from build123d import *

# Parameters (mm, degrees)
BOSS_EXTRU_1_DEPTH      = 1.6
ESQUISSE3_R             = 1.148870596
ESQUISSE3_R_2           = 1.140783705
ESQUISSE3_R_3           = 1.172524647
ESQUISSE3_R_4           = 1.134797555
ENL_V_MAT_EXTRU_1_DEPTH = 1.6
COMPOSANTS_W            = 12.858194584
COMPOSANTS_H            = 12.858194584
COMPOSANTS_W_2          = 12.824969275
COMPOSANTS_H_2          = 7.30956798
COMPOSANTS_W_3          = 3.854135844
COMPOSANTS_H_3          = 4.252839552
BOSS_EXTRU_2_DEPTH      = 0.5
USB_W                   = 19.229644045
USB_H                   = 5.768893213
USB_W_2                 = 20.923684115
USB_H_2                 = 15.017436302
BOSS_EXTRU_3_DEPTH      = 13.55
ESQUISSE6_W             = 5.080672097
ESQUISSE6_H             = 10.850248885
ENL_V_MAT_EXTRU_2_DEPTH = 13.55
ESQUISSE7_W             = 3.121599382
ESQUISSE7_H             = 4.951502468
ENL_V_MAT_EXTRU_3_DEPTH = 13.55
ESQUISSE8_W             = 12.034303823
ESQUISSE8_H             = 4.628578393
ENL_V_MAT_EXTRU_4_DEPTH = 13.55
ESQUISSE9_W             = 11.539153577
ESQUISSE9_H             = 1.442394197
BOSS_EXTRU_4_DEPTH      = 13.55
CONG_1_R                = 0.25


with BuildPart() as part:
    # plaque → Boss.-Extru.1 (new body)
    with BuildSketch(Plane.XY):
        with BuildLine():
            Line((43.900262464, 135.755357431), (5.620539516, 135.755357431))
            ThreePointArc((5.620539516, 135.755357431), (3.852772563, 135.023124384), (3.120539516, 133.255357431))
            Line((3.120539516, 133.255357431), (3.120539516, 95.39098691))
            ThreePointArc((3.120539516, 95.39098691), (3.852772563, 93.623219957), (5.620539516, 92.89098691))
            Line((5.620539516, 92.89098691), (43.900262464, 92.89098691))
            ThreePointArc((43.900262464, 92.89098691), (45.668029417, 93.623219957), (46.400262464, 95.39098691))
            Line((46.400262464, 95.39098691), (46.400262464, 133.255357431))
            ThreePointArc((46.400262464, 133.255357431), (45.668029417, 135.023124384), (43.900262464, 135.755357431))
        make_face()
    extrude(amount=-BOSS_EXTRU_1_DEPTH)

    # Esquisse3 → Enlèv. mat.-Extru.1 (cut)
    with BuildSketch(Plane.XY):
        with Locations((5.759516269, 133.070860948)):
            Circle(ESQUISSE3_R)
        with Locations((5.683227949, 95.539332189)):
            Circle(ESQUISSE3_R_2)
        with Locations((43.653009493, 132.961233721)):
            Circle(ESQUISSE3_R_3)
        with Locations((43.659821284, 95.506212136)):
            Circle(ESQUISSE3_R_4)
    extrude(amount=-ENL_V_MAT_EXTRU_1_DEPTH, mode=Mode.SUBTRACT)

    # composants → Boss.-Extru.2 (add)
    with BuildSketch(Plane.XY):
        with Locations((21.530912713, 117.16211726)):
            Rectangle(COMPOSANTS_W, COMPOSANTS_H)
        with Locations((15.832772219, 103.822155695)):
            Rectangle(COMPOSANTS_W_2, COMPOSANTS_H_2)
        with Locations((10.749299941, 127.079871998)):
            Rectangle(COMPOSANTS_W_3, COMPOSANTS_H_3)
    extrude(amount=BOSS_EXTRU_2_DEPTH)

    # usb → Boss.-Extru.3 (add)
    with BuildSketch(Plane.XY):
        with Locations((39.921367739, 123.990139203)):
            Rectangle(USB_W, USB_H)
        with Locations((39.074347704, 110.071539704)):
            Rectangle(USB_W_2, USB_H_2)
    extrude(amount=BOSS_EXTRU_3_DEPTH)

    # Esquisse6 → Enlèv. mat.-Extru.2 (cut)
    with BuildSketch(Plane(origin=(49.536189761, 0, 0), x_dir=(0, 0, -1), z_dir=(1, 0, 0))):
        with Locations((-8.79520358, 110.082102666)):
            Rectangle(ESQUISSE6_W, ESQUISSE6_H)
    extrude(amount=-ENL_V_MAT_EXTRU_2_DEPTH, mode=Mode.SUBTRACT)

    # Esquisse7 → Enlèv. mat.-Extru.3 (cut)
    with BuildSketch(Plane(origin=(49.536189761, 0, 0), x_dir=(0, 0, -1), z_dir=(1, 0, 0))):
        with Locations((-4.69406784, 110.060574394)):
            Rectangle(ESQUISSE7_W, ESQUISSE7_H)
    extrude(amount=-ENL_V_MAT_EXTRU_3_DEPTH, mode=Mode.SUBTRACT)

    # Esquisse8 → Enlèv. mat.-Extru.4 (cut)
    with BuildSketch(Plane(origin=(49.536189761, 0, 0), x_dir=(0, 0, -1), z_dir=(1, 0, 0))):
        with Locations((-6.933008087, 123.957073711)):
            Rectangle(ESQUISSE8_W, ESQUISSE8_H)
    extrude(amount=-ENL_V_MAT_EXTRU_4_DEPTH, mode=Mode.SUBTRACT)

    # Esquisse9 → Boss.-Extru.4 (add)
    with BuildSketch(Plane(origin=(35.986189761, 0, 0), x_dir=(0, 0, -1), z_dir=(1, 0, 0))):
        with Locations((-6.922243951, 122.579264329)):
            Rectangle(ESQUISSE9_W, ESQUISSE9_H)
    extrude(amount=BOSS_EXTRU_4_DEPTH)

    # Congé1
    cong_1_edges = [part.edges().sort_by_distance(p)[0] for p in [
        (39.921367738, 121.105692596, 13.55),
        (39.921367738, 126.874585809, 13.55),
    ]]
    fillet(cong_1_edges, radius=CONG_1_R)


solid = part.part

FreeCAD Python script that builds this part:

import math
import FreeCAD as App
import Part
import Sketcher
from FreeCAD import Vector
Q = App.Units.Quantity


def edges_at(feature, points):
    """Names of the edges that pass closest to the given points."""
    edges = feature.Shape.Edges
    near = lambda p: min(range(len(edges)), key=lambda i: edges[i].distToShape(Part.Vertex(*p))[0])
    return sorted({f"Edge{near(p) + 1}" for p in points})


def add_polygon(sketch, points):
    """Adds a closed chain of lines whose ends are joined by coincident constraints."""
    first, n = sketch.GeometryCount, len(points)
    for a, b in zip(points, points[1:] + points[:1]):
        sketch.addGeometry(Part.LineSegment(App.Vector(*a, 0), App.Vector(*b, 0)), False)
    for i in range(n):
        sketch.addConstraint(Sketcher.Constraint("Coincident", first + i, 2, first + (i + 1) % n, 1))

doc = App.newDocument("Part")
body = doc.addObject("PartDesign::Body", "Body")

# Sketch on XY plane
sketch1 = body.newObject("Sketcher::SketchObject", "Sketch")
sketch1.AttachmentSupport = (doc.getObject("XY_Plane"), [""])
sketch1.MapMode = "FlatFace"
sketch1.addGeometry([
    Part.LineSegment(Vector(43.9, 135.8, 0), Vector(5.6, 135.8, 0)),  # 0
    Part.ArcOfCircle(Part.Circle(Vector(5.6, 133.3, 0), Vector(0, 0, 1), 2.5), math.radians(90), math.radians(180)),  # 1
    Part.LineSegment(Vector(3.1, 133.3, 0), Vector(3.1, 95.4, 0)),  # 2
    Part.ArcOfCircle(Part.Circle(Vector(5.6, 95.4, 0), Vector(0, 0, 1), 2.5), math.radians(180), math.radians(270)),  # 3
    Part.LineSegment(Vector(5.6, 92.9, 0), Vector(43.9, 92.9, 0)),  # 4
    Part.ArcOfCircle(Part.Circle(Vector(43.9, 95.4, 0), Vector(0, 0, 1), 2.5), math.radians(-90), math.radians(0)),  # 5
    Part.LineSegment(Vector(46.4, 95.4, 0), Vector(46.4, 133.3, 0)),  # 6
    Part.ArcOfCircle(Part.Circle(Vector(43.9, 133.3, 0), Vector(0, 0, 1), 2.5), math.radians(0), math.radians(90)),  # 7
], False)
sketch1.addConstraint([
    Sketcher.Constraint("Tangent", 0, 2, 1, 1),
    Sketcher.Constraint("Tangent", 1, 2, 2, 1),
    Sketcher.Constraint("Tangent", 2, 2, 3, 1),
    Sketcher.Constraint("Tangent", 3, 2, 4, 1),
    Sketcher.Constraint("Tangent", 4, 2, 5, 1),
    Sketcher.Constraint("Tangent", 5, 2, 6, 1),
    Sketcher.Constraint("Tangent", 6, 2, 7, 1),
    Sketcher.Constraint("Tangent", 7, 2, 0, 1),
    Sketcher.Constraint("Horizontal", 0),
    Sketcher.Constraint("Vertical", 2),
    Sketcher.Constraint("Horizontal", 4),
    Sketcher.Constraint("Vertical", 6),
    Sketcher.Constraint("Equal", 1, 3),
    Sketcher.Constraint("Equal", 3, 5),
    Sketcher.Constraint("Equal", 5, 7),
    Sketcher.Constraint("Radius", 1, Q("2.5 mm")),
    Sketcher.Constraint("DistanceY", 2, 2, 2, 1, Q("37.864371 mm")),
    Sketcher.Constraint("DistanceX", 0, 2, 0, 1, Q("38.279723 mm")),
    Sketcher.Constraint("DistanceX", -1, 1, 1, 3, Q("5.62054 mm")),
    Sketcher.Constraint("DistanceY", -1, 1, 1, 3, Q("133.255357 mm")),
])
pad1 = body.newObject("PartDesign::Pad", "Pad")
pad1.Profile = sketch1
pad1.Length = 1.6
pad1.Reversed = True

# Sketch on XY plane
sketch2 = body.newObject("Sketcher::SketchObject", "Sketch001")
sketch2.AttachmentSupport = (doc.getObject("XY_Plane"), [""])
sketch2.MapMode = "FlatFace"
sketch2.addGeometry([
    Part.Circle(Vector(5.8, 133.1, 0), Vector(0, 0, 1), 1.1),
    Part.Circle(Vector(5.7, 95.5, 0), Vector(0, 0, 1), 1.1),
    Part.Circle(Vector(43.7, 133, 0), Vector(0, 0, 1), 1.2),
    Part.Circle(Vector(43.7, 95.5, 0), Vector(0, 0, 1), 1.1),
], False)
sketch2.addConstraint([
    Sketcher.Constraint("Diameter", 0, Q("2.297741 mm")),
    Sketcher.Constraint("Diameter", 2, Q("2.345049 mm")),
    Sketcher.Constraint("Diameter", 1, Q("2.281567 mm")),
    Sketcher.Constraint("Diameter", 3, Q("2.269595 mm")),
    Sketcher.Constraint("DistanceY", 1, 3, 2, 3, Q("37.421902 mm")),
    Sketcher.Constraint("DistanceY", -1, 1, 0, 3, Q("133.070861 mm")),
    Sketcher.Constraint("DistanceX", -1, 1, 2, 3, Q("43.653009 mm")),
    Sketcher.Constraint("DistanceX", -1, 1, 3, 3, Q("43.659821 mm")),
    Sketcher.Constraint("DistanceX", 1, 3, 0, 3, Q("0.076288 mm")),
    Sketcher.Constraint("DistanceY", 1, 3, 0, 3, Q("37.531529 mm")),
    Sketcher.Constraint("DistanceX", 1, 3, 2, 3, Q("37.969782 mm")),
    Sketcher.Constraint("DistanceY", 3, 3, 2, 3, Q("37.455022 mm")),
])
pocket1 = body.newObject("PartDesign::Pocket", "Pocket")
pocket1.Profile = sketch2
pocket1.Length = 1.6

# Sketch on XY plane
sketch3 = body.newObject("Sketcher::SketchObject", "Sketch002")
sketch3.AttachmentSupport = (doc.getObject("XY_Plane"), [""])
sketch3.MapMode = "FlatFace"
add_polygon(sketch3, [(15.1, 123.6), (15.1, 110.7), (28, 110.7), (28, 123.6)])  # lines 0-3
add_polygon(sketch3, [(9.4, 107.5), (9.4, 100.2), (22.2, 100.2), (22.2, 107.5)])  # lines 4-7
add_polygon(sketch3, [(8.8, 129.2), (8.8, 125), (12.7, 125), (12.7, 129.2)])  # lines 8-11
sketch3.addConstraint([
    Sketcher.Constraint("Vertical", 0),
    Sketcher.Constraint("Horizontal", 1),
    Sketcher.Constraint("Vertical", 2),
    Sketcher.Constraint("Horizontal", 3),
    Sketcher.Constraint("Vertical", 4),
    Sketcher.Constraint("Horizontal", 5),
    Sketcher.Constraint("Vertical", 6),
    Sketcher.Constraint("Horizontal", 7),
    Sketcher.Constraint("Vertical", 8),
    Sketcher.Constraint("Horizontal", 9),
    Sketcher.Constraint("Vertical", 10),
    Sketcher.Constraint("Horizontal", 11),
    Sketcher.Constraint("Equal", 3, 0),
    Sketcher.Constraint("DistanceX", 5, 1, 5, 2, Q("12.824969 mm")),
    Sketcher.Constraint("DistanceY", 8, 2, 8, 1, Q("4.25284 mm")),
    Sketcher.Constraint("DistanceX", 1, 1, 1, 2, Q("12.858195 mm")),
    Sketcher.Constraint("DistanceX", 9, 1, 9, 2, Q("3.854136 mm")),
    Sketcher.Constraint("DistanceY", 4, 2, 4, 1, Q("7.309568 mm")),
    Sketcher.Constraint("DistanceY", -1, 1, 0, 2, Q("110.73302 mm")),
    Sketcher.Constraint("DistanceX", -1, 1, 1, 2, Q("27.96001 mm")),
    Sketcher.Constraint("DistanceY", -1, 1, 4, 2, Q("100.167372 mm")),
    Sketcher.Constraint("DistanceY", -1, 1, 10, 2, Q("129.206292 mm")),
    Sketcher.Constraint("DistanceX", 0, 2, 5, 2, Q("7.143441 mm")),
    Sketcher.Constraint("DistanceX", 7, 2, 9, 2, Q("3.25608 mm")),
])
pad2 = body.newObject("PartDesign::Pad", "Pad001")
pad2.Profile = sketch3
pad2.Length = 0.5

# Sketch on XY plane
sketch4 = body.newObject("Sketcher::SketchObject", "Sketch003")
sketch4.AttachmentSupport = (doc.getObject("XY_Plane"), [""])
sketch4.MapMode = "FlatFace"
add_polygon(sketch4, [(30, 127), (30, 121), (50, 121), (50, 127)])  # lines 0-3
add_polygon(sketch4, [(29, 118), (29, 103), (50, 103), (50, 118)])  # lines 4-7
sketch4.addConstraint([
    Sketcher.Constraint("Vertical", 0),
    Sketcher.Constraint("Horizontal", 1),
    Sketcher.Constraint("Vertical", 2),
    Sketcher.Constraint("Horizontal", 3),
    Sketcher.Constraint("Vertical", 4),
    Sketcher.Constraint("Horizontal", 5),
    Sketcher.Constraint("Vertical", 6),
    Sketcher.Constraint("Horizontal", 7),
    Sketcher.Constraint("Vertical", 2, 2, 5, 2),
    Sketcher.Constraint("DistanceX", 1, 1, 1, 2, Q("19.229644 mm")),
    Sketcher.Constraint("DistanceX", 5, 1, 5, 2, Q("20.923684 mm")),
    Sketcher.Constraint("DistanceY", 0, 2, 0, 1, Q("5.768893 mm")),
    Sketcher.Constraint("DistanceY", 4, 2, 4, 1, Q("15.017436 mm")),
    Sketcher.Constraint("DistanceX", -1, 1, 1, 2, Q("49.53619 mm")),
    Sketcher.Constraint("DistanceY", -1, 1, 4, 2, Q("102.562822 mm")),
    Sketcher.Constraint("DistanceY", 4, 2, 0, 2, Q("18.542871 mm")),
])
pad3 = body.newObject("PartDesign::Pad", "Pad002")
pad3.Profile = sketch4
pad3.Length = 13.55

# Sketch on YZ plane
sketch5 = body.newObject("Sketcher::SketchObject", "Sketch004")
sketch5.AttachmentSupport = (doc.getObject("YZ_Plane"), [""])
sketch5.MapMode = "FlatFace"
sketch5.AttachmentOffset = App.Placement(Vector(0, 0, 49.53619), App.Rotation())
add_polygon(sketch5, [(116, 11), (105, 11), (105, 6), (116, 6)])  # lines 0-3
sketch5.addConstraint([
    Sketcher.Constraint("Horizontal", 0),
    Sketcher.Constraint("Vertical", 1),
    Sketcher.Constraint("Horizontal", 2),
    Sketcher.Constraint("Vertical", 3),
    Sketcher.Constraint("DistanceX", 0, 2, 0, 1, Q("10.850249 mm")),
    Sketcher.Constraint("DistanceY", 1, 2, 1, 1, Q("5.080672 mm")),
    Sketcher.Constraint("DistanceX", -1, 1, 0, 2, Q("104.656978 mm")),
    Sketcher.Constraint("DistanceY", -1, 1, 0, 2, Q("11.33554 mm")),
])
pocket2 = body.newObject("PartDesign::Pocket", "Pocket001")
pocket2.Profile = sketch5
pocket2.Length = 13.55

# Sketch on YZ plane
sketch6 = body.newObject("Sketcher::SketchObject", "Sketch005")
sketch6.AttachmentSupport = (doc.getObject("YZ_Plane"), [""])
sketch6.MapMode = "FlatFace"
sketch6.AttachmentOffset = App.Placement(Vector(0, 0, 49.53619), App.Rotation())
add_polygon(sketch6, [(112.5, 6.3), (107.6, 6.3), (107.6, 3.1), (112.5, 3.1)])  # lines 0-3
sketch6.addConstraint([
    Sketcher.Constraint("Horizontal", 0),
    Sketcher.Constraint("Vertical", 1),
    Sketcher.Constraint("Horizontal", 2),
    Sketcher.Constraint("Vertical", 3),
    Sketcher.Constraint("DistanceY", 1, 2, 1, 1, Q("3.121599 mm")),
    Sketcher.Constraint("DistanceX", 0, 2, 0, 1, Q("4.951502 mm")),
    Sketcher.Constraint("DistanceY", -1, 1, 1, 2, Q("3.133268 mm")),
    Sketcher.Constraint("DistanceX", -1, 1, 0, 2, Q("107.584823 mm")),
])
pocket3 = body.newObject("PartDesign::Pocket", "Pocket002")
pocket3.Profile = sketch6
pocket3.Length = 13.55

# Sketch on YZ plane
sketch7 = body.newObject("Sketcher::SketchObject", "Sketch006")
sketch7.AttachmentSupport = (doc.getObject("YZ_Plane"), [""])
sketch7.MapMode = "FlatFace"
sketch7.AttachmentOffset = App.Placement(Vector(0, 0, 49.53619), App.Rotation())
add_polygon(sketch7, [(126.3, 13), (121.6, 13), (121.6, 0.9), (126.3, 0.9)])  # lines 0-3
sketch7.addConstraint([
    Sketcher.Constraint("Horizontal", 0),
    Sketcher.Constraint("Vertical", 1),
    Sketcher.Constraint("Horizontal", 2),
    Sketcher.Constraint("Vertical", 3),
    Sketcher.Constraint("DistanceX", 0, 2, 0, 1, Q("4.628578 mm")),
    Sketcher.Constraint("DistanceY", 1, 2, 1, 1, Q("12.034304 mm")),
    Sketcher.Constraint("DistanceY", -1, 1, 0, 2, Q("12.95016 mm")),
    Sketcher.Constraint("DistanceX", -1, 1, 0, 2, Q("121.642785 mm")),
])
pocket4 = body.newObject("PartDesign::Pocket", "Pocket003")
pocket4.Profile = sketch7
pocket4.Length = 13.55

# Sketch on YZ plane
sketch8 = body.newObject("Sketcher::SketchObject", "Sketch007")
sketch8.AttachmentSupport = (doc.getObject("YZ_Plane"), [""])
sketch8.MapMode = "FlatFace"
sketch8.AttachmentOffset = App.Placement(Vector(0, 0, 35.98619), App.Rotation())
add_polygon(sketch8, [(123.3, 12.7), (121.9, 12.7), (121.9, 1.2), (123.3, 1.2)])  # lines 0-3
sketch8.addConstraint([
    Sketcher.Constraint("Horizontal", 0),
    Sketcher.Constraint("Vertical", 1),
    Sketcher.Constraint("Horizontal", 2),
    Sketcher.Constraint("Vertical", 3),
    Sketcher.Constraint("DistanceX", 0, 2, 0, 1, Q("1.442394 mm")),
    Sketcher.Constraint("DistanceY", 1, 2, 1, 1, Q("11.539154 mm")),
    Sketcher.Constraint("DistanceY", -1, 1, 0, 2, Q("12.691821 mm")),
    Sketcher.Constraint("DistanceX", -1, 1, 2, 2, Q("123.300461 mm")),
])
pad4 = body.newObject("PartDesign::Pad", "Pad003")
pad4.Profile = sketch8
pad4.Length = 13.55
doc.recompute()

fillet = body.newObject("PartDesign::Fillet", "Fillet")
fillet.Base = (pad4, edges_at(pad4, [(39.921, 121.106, 13.55), (39.921, 126.875, 13.55)]))
fillet.Radius = 0.25

doc.recompute()
